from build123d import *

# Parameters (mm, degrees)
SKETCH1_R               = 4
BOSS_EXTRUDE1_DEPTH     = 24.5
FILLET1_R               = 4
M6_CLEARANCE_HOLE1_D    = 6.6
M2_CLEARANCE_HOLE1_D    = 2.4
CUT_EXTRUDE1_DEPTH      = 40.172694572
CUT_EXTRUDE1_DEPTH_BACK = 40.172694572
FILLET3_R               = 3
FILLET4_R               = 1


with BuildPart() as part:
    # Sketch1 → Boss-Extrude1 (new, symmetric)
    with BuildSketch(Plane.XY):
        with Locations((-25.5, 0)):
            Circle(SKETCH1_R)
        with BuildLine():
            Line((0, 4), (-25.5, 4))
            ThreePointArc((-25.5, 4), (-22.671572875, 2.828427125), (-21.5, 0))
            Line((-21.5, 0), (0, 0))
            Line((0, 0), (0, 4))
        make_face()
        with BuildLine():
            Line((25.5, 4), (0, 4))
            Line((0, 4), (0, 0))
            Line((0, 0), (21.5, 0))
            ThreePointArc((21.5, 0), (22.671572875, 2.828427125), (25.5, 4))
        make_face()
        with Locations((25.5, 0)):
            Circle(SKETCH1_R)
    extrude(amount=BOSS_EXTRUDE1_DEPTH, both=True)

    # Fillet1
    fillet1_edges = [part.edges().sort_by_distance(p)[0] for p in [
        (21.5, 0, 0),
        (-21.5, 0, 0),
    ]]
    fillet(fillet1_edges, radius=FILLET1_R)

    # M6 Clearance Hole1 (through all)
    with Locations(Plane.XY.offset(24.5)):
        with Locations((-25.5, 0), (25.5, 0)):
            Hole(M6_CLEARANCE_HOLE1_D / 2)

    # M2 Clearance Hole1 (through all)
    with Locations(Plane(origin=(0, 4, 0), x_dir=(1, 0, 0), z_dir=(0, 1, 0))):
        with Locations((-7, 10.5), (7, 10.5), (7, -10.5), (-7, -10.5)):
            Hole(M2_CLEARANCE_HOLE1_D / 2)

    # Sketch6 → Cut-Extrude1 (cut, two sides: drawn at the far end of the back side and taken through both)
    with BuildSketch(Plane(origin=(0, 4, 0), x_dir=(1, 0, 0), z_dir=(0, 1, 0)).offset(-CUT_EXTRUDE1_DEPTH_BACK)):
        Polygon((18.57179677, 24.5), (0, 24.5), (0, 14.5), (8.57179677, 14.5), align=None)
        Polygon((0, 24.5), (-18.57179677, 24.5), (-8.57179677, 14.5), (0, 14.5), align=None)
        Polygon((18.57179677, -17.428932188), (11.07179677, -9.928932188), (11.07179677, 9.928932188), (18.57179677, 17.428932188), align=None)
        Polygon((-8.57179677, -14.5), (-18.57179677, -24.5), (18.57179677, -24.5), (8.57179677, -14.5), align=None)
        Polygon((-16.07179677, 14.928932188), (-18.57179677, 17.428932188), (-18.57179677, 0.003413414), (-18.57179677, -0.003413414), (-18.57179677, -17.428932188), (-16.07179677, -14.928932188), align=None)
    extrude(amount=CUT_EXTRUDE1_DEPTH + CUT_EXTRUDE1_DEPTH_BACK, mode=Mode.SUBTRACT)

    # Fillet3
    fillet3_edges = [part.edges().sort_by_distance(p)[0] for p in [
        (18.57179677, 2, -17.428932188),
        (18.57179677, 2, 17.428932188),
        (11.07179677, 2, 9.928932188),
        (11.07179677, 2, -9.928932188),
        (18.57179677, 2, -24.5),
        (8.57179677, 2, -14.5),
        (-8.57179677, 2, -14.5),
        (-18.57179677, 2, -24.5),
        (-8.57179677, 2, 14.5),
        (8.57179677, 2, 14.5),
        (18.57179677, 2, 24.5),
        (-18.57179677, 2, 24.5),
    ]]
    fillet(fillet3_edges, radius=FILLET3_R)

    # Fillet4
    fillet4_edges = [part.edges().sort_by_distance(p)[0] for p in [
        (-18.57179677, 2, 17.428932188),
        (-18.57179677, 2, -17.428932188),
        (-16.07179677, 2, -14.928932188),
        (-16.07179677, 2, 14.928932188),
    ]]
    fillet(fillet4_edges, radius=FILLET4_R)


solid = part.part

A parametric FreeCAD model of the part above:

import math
import FreeCAD as App
import Part
import Sketcher

V = App.Vector
Q = App.Units.Quantity


def edges_at(feature, points):
    """Names of the edges that pass closest to the given points."""
    edges = feature.Shape.Edges
    near = lambda p: min(range(len(edges)), key=lambda i: edges[i].distToShape(Part.Vertex(*p))[0])
    return sorted({f"Edge{near(p) + 1}" for p in points})

doc = App.newDocument("Part")
body = doc.addObject("PartDesign::Body", "Body")

sketch1 = doc.addObject("Sketcher::SketchObject", "Sketch")
body.addObject(sketch1)
sketch1.AttachmentSupport = (doc.XY_Plane, [""])
sketch1.MapMode = "FlatFace"
sketch1.addGeometry([
    Part.ArcOfCircle(Part.Circle(V(-25.5, 0, 0), V(0, 0, 1), 4), math.radians(90), math.radians(360)),
    Part.LineSegment(V(-21.5, 0, 0), V(21.5, 0, 0)),
    Part.ArcOfCircle(Part.Circle(V(25.5, 0, 0), V(0, 0, 1), 4), math.radians(180), math.radians(450)),
    Part.LineSegment(V(25.5, 4, 0), V(-25.5, 4, 0)),
], False)
sketch1.addConstraint([
    Sketcher.Constraint("Coincident", 0, 2, 1, 1),
    Sketcher.Constraint("Coincident", 1, 2, 2, 1),
    Sketcher.Constraint("Tangent", 2, 2, 3, 1),
    Sketcher.Constraint("Tangent", 3, 2, 0, 1),
    Sketcher.Constraint("Horizontal", 1),
    Sketcher.Constraint("Horizontal", 3),
    Sketcher.Constraint("Equal", 0, 2),
    Sketcher.Constraint("Symmetric", 0, 3, 2, 3, -1, 1),
    Sketcher.Constraint("PointOnObject", 0, 2, -1),
    Sketcher.Constraint("Radius", 0, Q("4 mm")),
    Sketcher.Constraint("DistanceX", 1, 1, 1, 2, Q("43 mm")),
])
pad1 = doc.addObject("PartDesign::Pad", "Pad")
body.addObject(pad1)
pad1.Profile = sketch1
pad1.Length = 49
pad1.Midplane = True
doc.recompute()

fillet = doc.addObject("PartDesign::Fillet", "Fillet")
body.addObject(fillet)
fillet.Base = (pad1, edges_at(pad1, [(21.5, 0, 0), (-21.5, 0, 0)]))
fillet.Radius = 4

sketch2 = doc.addObject("Sketcher::SketchObject", "Sketch001")
body.addObject(sketch2)
sketch2.AttachmentSupport = (doc.XY_Plane, [""])
sketch2.MapMode = "FlatFace"
sketch2.AttachmentOffset = App.Placement(V(0, 0, 24.5), App.Rotation())
sketch2.addGeometry([
    Part.Circle(V(-25.5, 0, 0), V(0, 0, 1), 3.3),
    Part.Circle(V(25.5, 0, 0), V(0, 0, 1), 3.3),
], False)
sketch2.addConstraint([
    Sketcher.Constraint("Equal", 0, 1),
    Sketcher.Constraint("Symmetric", 0, 3, 1, 3, -1, 1),
    Sketcher.Constraint("PointOnObject", 0, 3, -1),
    Sketcher.Constraint("Diameter", 0, Q("6.6 mm")),
    Sketcher.Constraint("DistanceX", 0, 3, 1, 3, Q("51 mm")),
])
doc.recompute()
hole = doc.addObject("PartDesign::Hole", "Hole")
body.addObject(hole)
hole.Profile = sketch2
hole.ThreadType = "None"
hole.Diameter = 6.6
hole.DepthType = "ThroughAll"

sketch3 = doc.addObject("Sketcher::SketchObject", "Sketch002")
body.addObject(sketch3)
sketch3.AttachmentSupport = (doc.XZ_Plane, [""])
sketch3.MapMode = "FlatFace"
sketch3.AttachmentOffset = App.Placement(V(0, 0, -4), App.Rotation())
sketch3.addGeometry([
    Part.Circle(V(-7, -10.5, 0), V(0, 0, 1), 1.2),
    Part.Circle(V(7, -10.5, 0), V(0, 0, 1), 1.2),
    Part.Circle(V(7, 10.5, 0), V(0, 0, 1), 1.2),
    Part.Circle(V(-7, 10.5, 0), V(0, 0, 1), 1.2),
], False)
sketch3.addConstraint([
    Sketcher.Constraint("Equal", 0, 1),
    Sketcher.Constraint("Equal", 1, 2),
    Sketcher.Constraint("Equal", 2, 3),
    Sketcher.Constraint("Symmetric", 0, 3, 2, 3, -1, 1),
    Sketcher.Constraint("Symmetric", 1, 3, 3, 3, -1, 1),
    Sketcher.Constraint("Symmetric", 0, 3, 1, 3, -2),
    Sketcher.Constraint("Diameter", 0, Q("2.4 mm")),
    Sketcher.Constraint("DistanceX", 0, 3, -1, 1, Q("7 mm")),
    Sketcher.Constraint("DistanceY", 1, 3, 2, 3, Q("21 mm")),
])
doc.recompute()
hole2 = doc.addObject("PartDesign::Hole", "Hole001")
body.addObject(hole2)
hole2.Profile = sketch3
hole2.ThreadType = "None"
hole2.Diameter = 2.4
hole2.DepthType = "ThroughAll"
hole2.Reversed = True

sketch4 = doc.addObject("Sketcher::SketchObject", "Sketch003")
body.addObject(sketch4)
sketch4.AttachmentSupport = (doc.XZ_Plane, [""])
sketch4.MapMode = "FlatFace"
sketch4.AttachmentOffset = App.Placement(V(0, 0, -4), App.Rotation())
sketch4.addGeometry([
    Part.LineSegment(V(18.571797, -24.5, 0), V(-18.571797, -24.5, 0)),
    Part.LineSegment(V(-18.571797, -24.5, 0), V(-8.571797, -14.5, 0)),
    Part.LineSegment(V(-8.571797, -14.5, 0), V(8.571797, -14.5, 0)),
    Part.LineSegment(V(8.571797, -14.5, 0), V(18.571797, -24.5, 0)),
    Part.LineSegment(V(11.071797, 9.928932, 0), V(18.571797, 17.428932, 0)),
    Part.LineSegment(V(18.571797, 17.428932, 0), V(18.571797, -17.428932, 0)),
    Part.LineSegment(V(18.571797, -17.428932, 0), V(11.071797, -9.928932, 0)),
    Part.LineSegment(V(11.071797, -9.928932, 0), V(11.071797, 9.928932, 0)),
    Part.LineSegment(V(-8.571797, 14.5, 0), V(-18.571797, 24.5, 0)),
    Part.LineSegment(V(-18.571797, 24.5, 0), V(18.571797, 24.5, 0)),
    Part.LineSegment(V(18.571797, 24.5, 0), V(8.571797, 14.5, 0)),
    Part.LineSegment(V(8.571797, 14.5, 0), V(-8.571797, 14.5, 0)),
    Part.LineSegment(V(-16.071797, -14.928932, 0), V(-18.571797, -17.428932, 0)),
    Part.LineSegment(V(-18.571797, -17.428932, 0), V(-18.571797, 17.428932, 0)),
    Part.LineSegment(V(-18.571797, 17.428932, 0), V(-16.071797, 14.928932, 0)),
    Part.LineSegment(V(-16.071797, 14.928932, 0), V(-16.071797, -14.928932, 0)),
], False)
sketch4.addConstraint([
    Sketcher.Constraint("Coincident", 0, 2, 1, 1),
    Sketcher.Constraint("Coincident", 1, 2, 2, 1),
    Sketcher.Constraint("Coincident", 2, 2, 3, 1),
    Sketcher.Constraint("Coincident", 3, 2, 0, 1),
    Sketcher.Constraint("Coincident", 4, 2, 5, 1),
    Sketcher.Constraint("Coincident", 5, 2, 6, 1),
    Sketcher.Constraint("Coincident", 6, 2, 7, 1),
    Sketcher.Constraint("Coincident", 7, 2, 4, 1),
    Sketcher.Constraint("Coincident", 8, 2, 9, 1),
    Sketcher.Constraint("Coincident", 9, 2, 10, 1),
    Sketcher.Constraint("Coincident", 10, 2, 11, 1),
    Sketcher.Constraint("Coincident", 11, 2, 8, 1),
    Sketcher.Constraint("Coincident", 12, 2, 13, 1),
    Sketcher.Constraint("Coincident", 13, 2, 14, 1),
    Sketcher.Constraint("Coincident", 14, 2, 15, 1),
    Sketcher.Constraint("Coincident", 15, 2, 12, 1),
    Sketcher.Constraint("Horizontal", 0),
    Sketcher.Constraint("Horizontal", 2),
    Sketcher.Constraint("Vertical", 5),
    Sketcher.Constraint("Vertical", 7),
    Sketcher.Constraint("Horizontal", 9),
    Sketcher.Constraint("Horizontal", 11),
    Sketcher.Constraint("Vertical", 13),
    Sketcher.Constraint("Vertical", 15),
    Sketcher.Constraint("Symmetric", 3, 2, 8, 2, -1, 1),
    Sketcher.Constraint("Symmetric", 1, 2, 10, 2, -1, 1),
    Sketcher.Constraint("Symmetric", 4, 2, 12, 2, -1, 1),
    Sketcher.Constraint("Perpendicular", 1, 3),
    Sketcher.Constraint("Perpendicular", 3, 4),
    Sketcher.Constraint("Perpendicular", 4, 6),
    Sketcher.Constraint("Parallel", 6, 8),
    Sketcher.Constraint("Perpendicular", 8, 10),
    Sketcher.Constraint("Parallel", 10, 12),
    Sketcher.Constraint("Perpendicular", 12, 14),
    Sketcher.Constraint("Horizontal", 5, 2, 12, 2),
    Sketcher.Constraint("Horizontal", 4, 2, 13, 2),
    Sketcher.Constraint("Vertical", 3, 2, 4, 2),
    Sketcher.Constraint("Vertical", 0, 2, 8, 2),
    Sketcher.Constraint("Vertical", 2, 2, 10, 2),
    Sketcher.Constraint("DistanceX", 0, 2, 1, 2, Q("10 mm")),
    Sketcher.Constraint("DistanceY", 1, 2, 8, 2, Q("39 mm")),
    Sketcher.Constraint("DistanceY", 7, 2, 14, 2, Q("5 mm")),
    Sketcher.Constraint("DistanceX", 2, 2, 6, 2, Q("2.5 mm")),
    Sketcher.Constraint("DistanceX", 0, 2, 0, 1, Q("37.143594 mm")),
    Sketcher.Constraint("DistanceY", 5, 2, 5, 1, Q("34.857864 mm")),
])
pocket1 = doc.addObject("PartDesign::Pocket", "Pocket")
body.addObject(pocket1)
pocket1.Profile = sketch4
pocket1.Type = "ThroughAll"
pocket1.Midplane = True
doc.recompute()

fillet2 = doc.addObject("PartDesign::Fillet", "Fillet001")
body.addObject(fillet2)
fillet2.Base = (pocket1, edges_at(pocket1, [
    (18.572, 2, -17.429),
    (18.572, 2, 17.429),
    (11.072, 2, 9.929),
    (11.072, 2, -9.929),
    (18.572, 2, -24.5),
    (8.572, 2, -14.5),
    (-8.572, 2, -14.5),
    (-18.572, 2, -24.5),
    (-8.572, 2, 14.5),
    (8.572, 2, 14.5),
    (18.572, 2, 24.5),
    (-18.572, 2, 24.5),
]))
fillet2.Radius = 3
doc.recompute()

fillet3 = doc.addObject("PartDesign::Fillet", "Fillet002")
body.addObject(fillet3)
fillet3.Base = (fillet2, edges_at(fillet2, [
    (-18.572, 2, 17.429),
    (-18.572, 2, -17.429),
    (-16.072, 2, -14.929),
    (-16.072, 2, 14.929),
]))
fillet3.Radius = 1

doc.recompute()
